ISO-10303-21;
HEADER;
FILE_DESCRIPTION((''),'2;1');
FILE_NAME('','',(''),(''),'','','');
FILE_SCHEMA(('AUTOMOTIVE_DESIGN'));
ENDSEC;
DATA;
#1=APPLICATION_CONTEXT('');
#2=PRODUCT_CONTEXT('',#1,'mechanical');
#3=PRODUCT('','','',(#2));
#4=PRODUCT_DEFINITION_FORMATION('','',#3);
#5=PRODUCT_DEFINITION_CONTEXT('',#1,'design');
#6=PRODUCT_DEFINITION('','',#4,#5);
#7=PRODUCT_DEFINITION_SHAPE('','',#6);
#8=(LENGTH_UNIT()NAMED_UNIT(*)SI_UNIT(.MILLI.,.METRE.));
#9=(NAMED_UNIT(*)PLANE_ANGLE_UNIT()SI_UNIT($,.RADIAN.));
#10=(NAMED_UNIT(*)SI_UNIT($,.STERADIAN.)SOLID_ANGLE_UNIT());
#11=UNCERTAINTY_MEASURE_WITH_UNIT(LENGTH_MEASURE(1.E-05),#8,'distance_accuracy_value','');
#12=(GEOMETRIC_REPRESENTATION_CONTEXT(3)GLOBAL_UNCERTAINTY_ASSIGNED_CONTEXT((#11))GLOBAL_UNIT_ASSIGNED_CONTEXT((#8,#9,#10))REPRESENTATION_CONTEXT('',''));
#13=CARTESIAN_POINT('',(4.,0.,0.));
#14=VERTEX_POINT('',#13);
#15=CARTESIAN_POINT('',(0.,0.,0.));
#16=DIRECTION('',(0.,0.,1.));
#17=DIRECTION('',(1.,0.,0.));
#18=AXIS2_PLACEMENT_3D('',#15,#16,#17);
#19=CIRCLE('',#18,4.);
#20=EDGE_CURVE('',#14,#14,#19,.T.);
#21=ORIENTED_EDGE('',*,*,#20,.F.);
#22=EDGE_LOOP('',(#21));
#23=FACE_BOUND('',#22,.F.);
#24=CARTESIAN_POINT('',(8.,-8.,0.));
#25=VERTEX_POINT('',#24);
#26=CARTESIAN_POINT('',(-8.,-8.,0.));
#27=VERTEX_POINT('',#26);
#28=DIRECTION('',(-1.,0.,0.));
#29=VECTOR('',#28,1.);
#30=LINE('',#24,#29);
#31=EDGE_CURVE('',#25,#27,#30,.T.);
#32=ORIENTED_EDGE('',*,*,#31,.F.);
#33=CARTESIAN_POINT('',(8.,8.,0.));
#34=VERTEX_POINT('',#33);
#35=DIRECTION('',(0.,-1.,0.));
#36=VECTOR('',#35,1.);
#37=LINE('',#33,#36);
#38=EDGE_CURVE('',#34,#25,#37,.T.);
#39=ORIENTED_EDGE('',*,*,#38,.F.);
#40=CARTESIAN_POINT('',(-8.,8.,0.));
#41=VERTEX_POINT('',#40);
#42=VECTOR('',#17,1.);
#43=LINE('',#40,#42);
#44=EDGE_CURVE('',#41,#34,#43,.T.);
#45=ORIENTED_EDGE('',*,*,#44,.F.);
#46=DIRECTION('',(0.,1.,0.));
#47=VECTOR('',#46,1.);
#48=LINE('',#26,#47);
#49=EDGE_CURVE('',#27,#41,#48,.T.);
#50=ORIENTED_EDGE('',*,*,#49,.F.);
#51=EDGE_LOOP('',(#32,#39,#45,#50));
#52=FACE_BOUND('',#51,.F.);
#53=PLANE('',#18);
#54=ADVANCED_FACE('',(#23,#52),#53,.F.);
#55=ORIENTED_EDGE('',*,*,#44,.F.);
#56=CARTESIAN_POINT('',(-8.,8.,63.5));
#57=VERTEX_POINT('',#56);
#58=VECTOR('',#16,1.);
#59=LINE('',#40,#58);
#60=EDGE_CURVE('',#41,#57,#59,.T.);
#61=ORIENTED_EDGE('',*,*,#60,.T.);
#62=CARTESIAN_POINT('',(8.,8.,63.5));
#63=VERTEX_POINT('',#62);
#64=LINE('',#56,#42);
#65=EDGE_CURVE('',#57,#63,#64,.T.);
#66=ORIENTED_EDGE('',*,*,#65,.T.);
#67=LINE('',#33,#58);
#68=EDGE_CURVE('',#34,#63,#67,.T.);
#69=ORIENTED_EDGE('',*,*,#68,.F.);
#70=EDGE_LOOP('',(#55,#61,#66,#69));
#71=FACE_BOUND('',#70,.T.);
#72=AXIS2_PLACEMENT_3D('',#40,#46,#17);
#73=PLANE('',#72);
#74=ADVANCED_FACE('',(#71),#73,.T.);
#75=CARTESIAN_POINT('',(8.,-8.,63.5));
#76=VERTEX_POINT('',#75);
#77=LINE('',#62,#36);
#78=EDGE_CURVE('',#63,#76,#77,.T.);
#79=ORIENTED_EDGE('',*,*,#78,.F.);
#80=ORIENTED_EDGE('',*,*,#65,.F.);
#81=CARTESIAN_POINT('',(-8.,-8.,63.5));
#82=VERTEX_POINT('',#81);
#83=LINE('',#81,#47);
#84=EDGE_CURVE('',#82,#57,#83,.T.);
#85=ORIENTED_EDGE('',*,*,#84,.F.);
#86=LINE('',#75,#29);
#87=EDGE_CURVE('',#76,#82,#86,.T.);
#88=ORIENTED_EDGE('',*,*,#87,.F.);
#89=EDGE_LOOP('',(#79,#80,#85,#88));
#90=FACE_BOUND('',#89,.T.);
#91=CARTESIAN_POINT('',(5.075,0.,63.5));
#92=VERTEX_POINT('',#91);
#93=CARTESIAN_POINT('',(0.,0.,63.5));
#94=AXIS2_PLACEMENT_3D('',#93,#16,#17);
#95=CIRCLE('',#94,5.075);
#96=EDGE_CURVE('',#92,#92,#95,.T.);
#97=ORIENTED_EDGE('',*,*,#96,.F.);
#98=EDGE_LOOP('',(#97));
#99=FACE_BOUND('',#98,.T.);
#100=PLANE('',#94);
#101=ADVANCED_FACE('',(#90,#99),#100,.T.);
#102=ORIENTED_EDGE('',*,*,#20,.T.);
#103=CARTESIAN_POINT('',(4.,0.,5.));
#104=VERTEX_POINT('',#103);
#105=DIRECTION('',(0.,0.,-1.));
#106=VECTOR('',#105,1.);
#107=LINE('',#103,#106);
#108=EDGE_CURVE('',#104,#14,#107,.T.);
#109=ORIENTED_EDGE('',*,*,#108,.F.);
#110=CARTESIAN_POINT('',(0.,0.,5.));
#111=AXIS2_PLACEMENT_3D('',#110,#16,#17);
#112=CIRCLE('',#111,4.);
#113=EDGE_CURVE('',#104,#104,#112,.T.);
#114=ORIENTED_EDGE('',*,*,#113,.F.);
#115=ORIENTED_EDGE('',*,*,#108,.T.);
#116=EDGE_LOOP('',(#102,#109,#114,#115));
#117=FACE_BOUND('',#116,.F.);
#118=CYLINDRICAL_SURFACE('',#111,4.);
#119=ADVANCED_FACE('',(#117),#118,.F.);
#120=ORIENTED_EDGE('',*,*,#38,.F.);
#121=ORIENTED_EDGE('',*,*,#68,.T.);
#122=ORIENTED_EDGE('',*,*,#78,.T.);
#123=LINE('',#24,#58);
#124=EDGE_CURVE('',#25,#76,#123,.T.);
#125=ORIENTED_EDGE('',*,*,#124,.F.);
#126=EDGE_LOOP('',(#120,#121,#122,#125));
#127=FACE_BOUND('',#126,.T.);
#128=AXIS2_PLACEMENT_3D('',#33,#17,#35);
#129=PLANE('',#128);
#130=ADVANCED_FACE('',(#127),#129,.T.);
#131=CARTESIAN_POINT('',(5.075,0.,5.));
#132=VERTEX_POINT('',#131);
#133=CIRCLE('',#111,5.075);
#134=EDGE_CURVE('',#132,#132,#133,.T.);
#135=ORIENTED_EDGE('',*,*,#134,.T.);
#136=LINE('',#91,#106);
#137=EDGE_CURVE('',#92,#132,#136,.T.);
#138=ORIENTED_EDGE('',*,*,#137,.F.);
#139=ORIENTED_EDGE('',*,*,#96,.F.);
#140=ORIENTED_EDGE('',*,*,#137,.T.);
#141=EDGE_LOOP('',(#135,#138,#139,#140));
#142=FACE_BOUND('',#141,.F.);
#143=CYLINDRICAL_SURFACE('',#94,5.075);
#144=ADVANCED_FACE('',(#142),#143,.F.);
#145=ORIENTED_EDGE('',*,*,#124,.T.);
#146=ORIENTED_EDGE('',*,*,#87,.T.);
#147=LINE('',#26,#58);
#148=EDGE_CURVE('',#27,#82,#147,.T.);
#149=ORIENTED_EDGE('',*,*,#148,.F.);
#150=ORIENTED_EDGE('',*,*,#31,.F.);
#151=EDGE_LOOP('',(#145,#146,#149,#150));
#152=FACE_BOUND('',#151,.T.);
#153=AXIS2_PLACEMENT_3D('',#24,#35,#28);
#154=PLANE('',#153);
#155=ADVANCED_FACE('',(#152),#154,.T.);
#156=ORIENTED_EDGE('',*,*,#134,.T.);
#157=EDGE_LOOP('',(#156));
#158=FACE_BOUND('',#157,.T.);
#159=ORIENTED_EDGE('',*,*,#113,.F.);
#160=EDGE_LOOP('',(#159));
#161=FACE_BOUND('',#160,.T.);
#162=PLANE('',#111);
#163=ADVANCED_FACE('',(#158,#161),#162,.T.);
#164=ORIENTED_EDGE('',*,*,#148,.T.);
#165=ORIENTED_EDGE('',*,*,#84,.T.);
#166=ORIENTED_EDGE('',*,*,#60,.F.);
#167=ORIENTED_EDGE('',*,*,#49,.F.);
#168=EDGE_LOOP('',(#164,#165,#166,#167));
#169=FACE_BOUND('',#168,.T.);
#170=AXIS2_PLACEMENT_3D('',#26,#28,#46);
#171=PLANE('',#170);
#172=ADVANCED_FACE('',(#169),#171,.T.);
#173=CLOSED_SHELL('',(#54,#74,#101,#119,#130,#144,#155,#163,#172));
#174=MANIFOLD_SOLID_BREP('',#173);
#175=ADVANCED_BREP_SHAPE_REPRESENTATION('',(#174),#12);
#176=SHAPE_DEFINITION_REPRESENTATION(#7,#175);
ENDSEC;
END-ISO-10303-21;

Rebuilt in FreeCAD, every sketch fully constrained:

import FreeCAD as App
import Part
import Sketcher

doc = App.newDocument("Part")
params = doc.addObject("Spreadsheet::Sheet", "Params")
for row, (alias, value) in enumerate([
    ("sketch1_width", "16 mm"),
    ("pad1_length", "63.5 mm"),
    ("sketch2_diameter", "10.15 mm"),
    ("pocket1_length", "58.5 mm"),
    ("sketch3_diameter", "8 mm"),
    ("pocket2_length", "5 mm"),
], start=1):
    params.set(f"A{row}", alias)
    params.set(f"B{row}", "=" + value)
    params.setAlias(f"B{row}", alias)

body = doc.addObject("PartDesign::Body", "Body")

# Sketch on XY plane
sketch1 = doc.addObject("Sketcher::SketchObject", "Sketch")
body.addObject(sketch1)
sketch1.AttachmentSupport = (doc.XY_Plane, [""])
sketch1.MapMode = "FlatFace"
sketch1.addGeometry(Part.LineSegment(App.Vector(8, 8, 0), App.Vector(-8, 8, 0)), False)
sketch1.addGeometry(Part.LineSegment(App.Vector(-8, 8, 0), App.Vector(-8, -8, 0)), False)
sketch1.addGeometry(Part.LineSegment(App.Vector(-8, -8, 0), App.Vector(8, -8, 0)), False)
sketch1.addGeometry(Part.LineSegment(App.Vector(8, -8, 0), App.Vector(8, 8, 0)), False)
sketch1.addConstraint(Sketcher.Constraint("Coincident", 0, 2, 1, 1))
sketch1.addConstraint(Sketcher.Constraint("Coincident", 1, 2, 2, 1))
sketch1.addConstraint(Sketcher.Constraint("Coincident", 2, 2, 3, 1))
sketch1.addConstraint(Sketcher.Constraint("Coincident", 3, 2, 0, 1))
sketch1.addConstraint(Sketcher.Constraint("Horizontal", 0))
sketch1.addConstraint(Sketcher.Constraint("Vertical", 1))
sketch1.addConstraint(Sketcher.Constraint("Horizontal", 2))
sketch1.addConstraint(Sketcher.Constraint("Vertical", 3))
sketch1.addConstraint(Sketcher.Constraint("Symmetric", 0, 2, 2, 2, -1, 1))
sketch1.addConstraint(Sketcher.Constraint("Equal", 2, 1))
sketch1.addConstraint(Sketcher.Constraint("DistanceX", 0, 2, 0, 1, 16.0))
sketch1.setExpression("Constraints[10]", "Params.sketch1_width")
pad1 = doc.addObject("PartDesign::Pad", "Pad")
body.addObject(pad1)
pad1.Profile = sketch1
pad1.setExpression("Length", "Params.pad1_length")

# Sketch on XY plane
sketch2 = doc.addObject("Sketcher::SketchObject", "Sketch001")
body.addObject(sketch2)
sketch2.AttachmentSupport = (doc.XY_Plane, [""])
sketch2.MapMode = "FlatFace"
sketch2.AttachmentOffset = App.Placement(App.Vector(0, 0, 63.5), App.Rotation())
sketch2.addGeometry(Part.Circle(App.Vector(0, 0, 0), App.Vector(0, 0, 1), 5), False)
sketch2.addConstraint(Sketcher.Constraint("Coincident", 0, 3, -1, 1))
sketch2.addConstraint(Sketcher.Constraint("Diameter", 0, 10.15))
sketch2.setExpression("Constraints[1]", "Params.sketch2_diameter")
pocket1 = doc.addObject("PartDesign::Pocket", "Pocket")
body.addObject(pocket1)
pocket1.Profile = sketch2
pocket1.setExpression("Length", "Params.pocket1_length")

# Sketch on XY plane
sketch3 = doc.addObject("Sketcher::SketchObject", "Sketch002")
body.addObject(sketch3)
sketch3.AttachmentSupport = (doc.XY_Plane, [""])
sketch3.MapMode = "FlatFace"
sketch3.AttachmentOffset = App.Placement(App.Vector(0, 0, 5), App.Rotation())
sketch3.addGeometry(Part.Circle(App.Vector(0, 0, 0), App.Vector(0, 0, 1), 4), False)
sketch3.addConstraint(Sketcher.Constraint("Coincident", 0, 3, -1, 1))
sketch3.addConstraint(Sketcher.Constraint("Diameter", 0, 8.0))
sketch3.setExpression("Constraints[1]", "Params.sketch3_diameter")
pocket2 = doc.addObject("PartDesign::Pocket", "Pocket001")
body.addObject(pocket2)
pocket2.Profile = sketch3
pocket2.setExpression("Length", "Params.pocket2_length")

doc.recompute()
